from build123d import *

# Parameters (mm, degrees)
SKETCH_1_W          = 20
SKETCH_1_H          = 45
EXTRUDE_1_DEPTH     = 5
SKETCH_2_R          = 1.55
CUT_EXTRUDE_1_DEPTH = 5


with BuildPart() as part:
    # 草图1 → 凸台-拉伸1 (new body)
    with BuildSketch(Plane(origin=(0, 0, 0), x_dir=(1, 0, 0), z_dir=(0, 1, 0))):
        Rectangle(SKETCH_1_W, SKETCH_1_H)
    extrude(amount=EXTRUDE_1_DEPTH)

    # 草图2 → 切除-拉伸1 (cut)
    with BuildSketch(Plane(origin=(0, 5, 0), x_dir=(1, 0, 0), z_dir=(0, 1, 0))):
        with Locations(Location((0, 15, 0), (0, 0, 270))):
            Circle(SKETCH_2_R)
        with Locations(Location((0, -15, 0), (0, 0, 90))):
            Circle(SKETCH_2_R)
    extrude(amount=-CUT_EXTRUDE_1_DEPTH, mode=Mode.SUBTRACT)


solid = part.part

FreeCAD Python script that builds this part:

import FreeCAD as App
import Part
import Sketcher
from FreeCAD import Vector
Q = App.Units.Quantity


def add_polygon(sketch, points):
    """Adds a closed chain of lines whose ends are joined by coincident constraints."""
    first, n = sketch.GeometryCount, len(points)
    for a, b in zip(points, points[1:] + points[:1]):
        sketch.addGeometry(Part.LineSegment(App.Vector(*a, 0), App.Vector(*b, 0)), False)
    for i in range(n):
        sketch.addConstraint(Sketcher.Constraint("Coincident", first + i, 2, first + (i + 1) % n, 1))

doc = App.newDocument("Part")
body = doc.addObject("PartDesign::Body", "Body")

sketch1 = body.newObject("Sketcher::SketchObject", "Sketch")
sketch1.AttachmentSupport = (doc.getObject("XZ_Plane"), [""])
sketch1.MapMode = "FlatFace"
add_polygon(sketch1, [(-10, -22.5), (-10, 22.5), (10, 22.5), (10, -22.5)])
sketch1.addConstraint([
    Sketcher.Constraint("Vertical", 0),
    Sketcher.Constraint("Horizontal", 1),
    Sketcher.Constraint("Vertical", 2),
    Sketcher.Constraint("Horizontal", 3),
    Sketcher.Constraint("Symmetric", 0, 2, 2, 2, -1, 1),
    Sketcher.Constraint("DistanceX", 1, 1, 1, 2, Q("20 mm")),
    Sketcher.Constraint("DistanceY", 0, 1, 0, 2, Q("45 mm")),
])
pad1 = body.newObject("PartDesign::Pad", "Pad")
pad1.Profile = sketch1
pad1.Length = 5
pad1.Reversed = True

sketch2 = body.newObject("Sketcher::SketchObject", "Sketch001")
sketch2.AttachmentSupport = (doc.getObject("XZ_Plane"), [""])
sketch2.MapMode = "FlatFace"
sketch2.AttachmentOffset = App.Placement(Vector(0, 0, -5), App.Rotation())
sketch2.addGeometry([
    Part.Circle(Vector(0, -15, 0), Vector(0, 0, 1), 1.55),
    Part.Circle(Vector(0, 15, 0), Vector(0, 0, 1), 1.55),
], False)
sketch2.addConstraint([
    Sketcher.Constraint("Equal", 0, 1),
    Sketcher.Constraint("Symmetric", 0, 3, 1, 3, -1, 1),
    Sketcher.Constraint("PointOnObject", 0, 3, -2),
    Sketcher.Constraint("Diameter", 0, Q("3.1 mm")),
    Sketcher.Constraint("DistanceY", 0, 3, -1, 1, Q("15 mm")),
])
pocket1 = body.newObject("PartDesign::Pocket", "Pocket")
pocket1.Profile = sketch2
pocket1.Length = 5
pocket1.Reversed = True

doc.recompute()
